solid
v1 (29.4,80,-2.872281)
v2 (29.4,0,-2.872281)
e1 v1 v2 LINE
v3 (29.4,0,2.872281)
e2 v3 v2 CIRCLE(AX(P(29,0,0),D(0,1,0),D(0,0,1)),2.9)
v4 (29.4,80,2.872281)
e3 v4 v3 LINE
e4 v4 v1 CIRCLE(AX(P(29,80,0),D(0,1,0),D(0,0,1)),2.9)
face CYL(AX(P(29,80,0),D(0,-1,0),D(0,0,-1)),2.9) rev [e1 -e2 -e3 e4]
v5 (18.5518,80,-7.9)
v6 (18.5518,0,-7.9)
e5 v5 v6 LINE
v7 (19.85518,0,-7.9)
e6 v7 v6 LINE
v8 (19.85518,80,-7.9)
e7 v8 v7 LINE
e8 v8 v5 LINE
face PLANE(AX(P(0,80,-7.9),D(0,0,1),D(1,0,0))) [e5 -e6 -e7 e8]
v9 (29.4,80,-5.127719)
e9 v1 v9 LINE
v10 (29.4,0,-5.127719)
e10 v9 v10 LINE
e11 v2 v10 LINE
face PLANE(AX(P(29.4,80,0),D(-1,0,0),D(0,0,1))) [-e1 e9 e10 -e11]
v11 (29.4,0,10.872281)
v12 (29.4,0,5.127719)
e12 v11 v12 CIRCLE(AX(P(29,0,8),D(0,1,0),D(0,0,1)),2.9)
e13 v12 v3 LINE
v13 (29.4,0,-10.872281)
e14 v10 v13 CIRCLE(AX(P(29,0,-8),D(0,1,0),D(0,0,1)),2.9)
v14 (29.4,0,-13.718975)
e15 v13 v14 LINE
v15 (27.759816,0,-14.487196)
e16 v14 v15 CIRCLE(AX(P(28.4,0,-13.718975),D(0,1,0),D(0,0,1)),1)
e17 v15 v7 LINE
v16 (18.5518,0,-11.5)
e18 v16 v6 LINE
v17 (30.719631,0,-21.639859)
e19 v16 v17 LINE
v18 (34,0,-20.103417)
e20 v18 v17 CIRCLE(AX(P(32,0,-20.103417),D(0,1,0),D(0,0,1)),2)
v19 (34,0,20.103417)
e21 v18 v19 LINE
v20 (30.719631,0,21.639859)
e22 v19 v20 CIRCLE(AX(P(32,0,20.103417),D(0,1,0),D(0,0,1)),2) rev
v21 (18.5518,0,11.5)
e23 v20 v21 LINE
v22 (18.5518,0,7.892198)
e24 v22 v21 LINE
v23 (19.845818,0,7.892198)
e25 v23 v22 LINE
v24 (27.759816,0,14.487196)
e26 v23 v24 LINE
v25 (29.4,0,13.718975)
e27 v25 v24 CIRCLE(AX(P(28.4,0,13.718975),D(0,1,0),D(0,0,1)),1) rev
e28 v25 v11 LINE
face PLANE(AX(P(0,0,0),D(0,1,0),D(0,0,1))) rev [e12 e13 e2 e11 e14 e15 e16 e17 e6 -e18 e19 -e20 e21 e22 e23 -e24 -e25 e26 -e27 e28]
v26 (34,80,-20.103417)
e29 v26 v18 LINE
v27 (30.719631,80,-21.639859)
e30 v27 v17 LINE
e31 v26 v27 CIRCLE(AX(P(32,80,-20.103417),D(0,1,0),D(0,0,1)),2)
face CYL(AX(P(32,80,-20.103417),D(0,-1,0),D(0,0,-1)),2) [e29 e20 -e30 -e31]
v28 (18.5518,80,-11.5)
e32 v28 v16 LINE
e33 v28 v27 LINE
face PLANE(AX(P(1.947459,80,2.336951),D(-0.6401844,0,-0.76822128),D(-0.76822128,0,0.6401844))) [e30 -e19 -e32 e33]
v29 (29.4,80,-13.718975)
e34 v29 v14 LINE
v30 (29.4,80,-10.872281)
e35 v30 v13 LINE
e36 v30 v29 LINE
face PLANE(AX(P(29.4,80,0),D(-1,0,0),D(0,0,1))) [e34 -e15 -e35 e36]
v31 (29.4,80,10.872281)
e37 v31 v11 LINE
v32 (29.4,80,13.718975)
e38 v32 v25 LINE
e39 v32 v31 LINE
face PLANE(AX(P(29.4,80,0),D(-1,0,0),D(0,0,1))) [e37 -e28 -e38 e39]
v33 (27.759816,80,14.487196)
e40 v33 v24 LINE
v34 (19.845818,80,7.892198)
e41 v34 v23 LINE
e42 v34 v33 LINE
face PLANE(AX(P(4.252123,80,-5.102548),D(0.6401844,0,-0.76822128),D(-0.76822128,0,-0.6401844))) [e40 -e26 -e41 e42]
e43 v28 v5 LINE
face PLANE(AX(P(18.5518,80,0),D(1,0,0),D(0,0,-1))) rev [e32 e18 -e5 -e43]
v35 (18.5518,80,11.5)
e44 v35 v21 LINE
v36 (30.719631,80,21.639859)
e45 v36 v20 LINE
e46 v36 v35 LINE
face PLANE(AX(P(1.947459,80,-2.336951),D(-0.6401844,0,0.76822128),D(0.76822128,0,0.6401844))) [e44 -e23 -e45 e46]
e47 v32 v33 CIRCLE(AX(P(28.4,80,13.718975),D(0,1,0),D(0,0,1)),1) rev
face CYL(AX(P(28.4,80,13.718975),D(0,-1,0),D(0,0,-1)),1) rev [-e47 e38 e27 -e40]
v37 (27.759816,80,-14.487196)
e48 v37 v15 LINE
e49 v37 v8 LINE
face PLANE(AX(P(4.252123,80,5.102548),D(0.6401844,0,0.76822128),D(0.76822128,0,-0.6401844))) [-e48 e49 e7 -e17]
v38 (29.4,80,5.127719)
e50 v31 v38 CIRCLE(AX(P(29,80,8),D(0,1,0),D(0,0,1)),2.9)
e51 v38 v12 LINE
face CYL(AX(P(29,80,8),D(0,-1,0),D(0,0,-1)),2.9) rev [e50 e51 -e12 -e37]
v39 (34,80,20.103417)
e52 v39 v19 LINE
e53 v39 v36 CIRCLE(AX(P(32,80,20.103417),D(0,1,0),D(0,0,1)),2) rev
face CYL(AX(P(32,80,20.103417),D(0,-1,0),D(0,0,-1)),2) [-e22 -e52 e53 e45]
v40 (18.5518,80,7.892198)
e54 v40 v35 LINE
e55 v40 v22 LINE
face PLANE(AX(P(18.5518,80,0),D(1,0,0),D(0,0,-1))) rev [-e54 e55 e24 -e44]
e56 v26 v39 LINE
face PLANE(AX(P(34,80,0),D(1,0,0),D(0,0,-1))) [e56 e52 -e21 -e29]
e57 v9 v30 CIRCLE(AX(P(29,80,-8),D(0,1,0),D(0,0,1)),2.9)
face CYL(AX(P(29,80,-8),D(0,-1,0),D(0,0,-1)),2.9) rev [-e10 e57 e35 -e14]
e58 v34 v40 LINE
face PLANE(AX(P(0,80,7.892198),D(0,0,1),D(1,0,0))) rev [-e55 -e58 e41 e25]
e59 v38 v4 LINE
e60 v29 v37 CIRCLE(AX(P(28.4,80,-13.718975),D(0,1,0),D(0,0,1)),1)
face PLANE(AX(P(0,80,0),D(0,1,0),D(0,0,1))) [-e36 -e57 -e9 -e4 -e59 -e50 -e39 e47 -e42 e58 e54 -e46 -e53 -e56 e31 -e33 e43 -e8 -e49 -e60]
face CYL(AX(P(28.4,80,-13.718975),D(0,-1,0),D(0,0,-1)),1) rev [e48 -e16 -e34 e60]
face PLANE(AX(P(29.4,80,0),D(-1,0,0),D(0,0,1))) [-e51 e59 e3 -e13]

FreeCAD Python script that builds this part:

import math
import FreeCAD as App
import Part
import Sketcher
from FreeCAD import Vector
Q = App.Units.Quantity

doc = App.newDocument("Part")
body = doc.addObject("PartDesign::Body", "Body")

# Sketch on XZ plane
sketch1 = body.newObject("Sketcher::SketchObject", "Sketch")
sketch1.AttachmentSupport = (doc.getObject("XZ_Plane"), [""])
sketch1.MapMode = "FlatFace"
sketch1.addGeometry(Part.LineSegment(Vector(18.6, -11.5, 0), Vector(18.6, -7.9, 0)), False)
sketch1.addGeometry(Part.LineSegment(Vector(18.6, -7.9, 0), Vector(19.9, -7.9, 0)), False)
sketch1.addGeometry(Part.LineSegment(Vector(19.9, -7.9, 0), Vector(27.8, -14.5, 0)), False)
sketch1.addGeometry(Part.ArcOfCircle(Part.Circle(Vector(28.4, -13.7, 0), Vector(0, 0, 1), 1), math.radians(-130), math.radians(0)), False)
sketch1.addGeometry(Part.LineSegment(Vector(29.4, -13.7, 0), Vector(29.4, -10.9, 0)), False)
sketch1.addGeometry(Part.ArcOfCircle(Part.Circle(Vector(29, -8, 0), Vector(0, 0, 1), 2.9), math.radians(-82), math.radians(82)), False)
sketch1.addGeometry(Part.LineSegment(Vector(29.4, -5.1, 0), Vector(29.4, -2.9, 0)), False)
sketch1.addGeometry(Part.ArcOfCircle(Part.Circle(Vector(29, 0, 0), Vector(0, 0, 1), 2.9), math.radians(-82), math.radians(82)), False)
sketch1.addGeometry(Part.LineSegment(Vector(29.4, 2.9, 0), Vector(29.4, 5.1, 0)), False)
sketch1.addGeometry(Part.ArcOfCircle(Part.Circle(Vector(29, 8, 0), Vector(0, 0, 1), 2.9), math.radians(-82), math.radians(82)), False)
sketch1.addGeometry(Part.LineSegment(Vector(29.4, 10.9, 0), Vector(29.4, 13.7, 0)), False)
sketch1.addGeometry(Part.ArcOfCircle(Part.Circle(Vector(28.4, 13.7, 0), Vector(0, 0, 1), 1), math.radians(0), math.radians(130)), False)
sketch1.addGeometry(Part.LineSegment(Vector(27.8, 14.5, 0), Vector(19.8, 7.9, 0)), False)
sketch1.addGeometry(Part.LineSegment(Vector(19.8, 7.9, 0), Vector(18.6, 7.9, 0)), False)
sketch1.addGeometry(Part.LineSegment(Vector(18.6, 7.9, 0), Vector(18.6, 11.5, 0)), False)
sketch1.addGeometry(Part.LineSegment(Vector(18.6, 11.5, 0), Vector(30.7, 21.6, 0)), False)
sketch1.addGeometry(Part.ArcOfCircle(Part.Circle(Vector(32, 20.1, 0), Vector(0, 0, 1), 2), math.radians(0), math.radians(130)), False)
sketch1.addGeometry(Part.LineSegment(Vector(34, 20.1, 0), Vector(34, -20.1, 0)), False)
sketch1.addGeometry(Part.ArcOfCircle(Part.Circle(Vector(32, -20.1, 0), Vector(0, 0, 1), 2), math.radians(-130), math.radians(0)), False)
sketch1.addGeometry(Part.LineSegment(Vector(30.7, -21.6, 0), Vector(18.6, -11.5, 0)), False)
sketch1.addConstraint(Sketcher.Constraint("Coincident", 0, 2, 1, 1))
sketch1.addConstraint(Sketcher.Constraint("Coincident", 1, 2, 2, 1))
sketch1.addConstraint(Sketcher.Constraint("Tangent", 2, 2, 3, 1))
sketch1.addConstraint(Sketcher.Constraint("Tangent", 3, 2, 4, 1))
sketch1.addConstraint(Sketcher.Constraint("Coincident", 4, 2, 5, 1))
sketch1.addConstraint(Sketcher.Constraint("Coincident", 5, 2, 6, 1))
sketch1.addConstraint(Sketcher.Constraint("Coincident", 6, 2, 7, 1))
sketch1.addConstraint(Sketcher.Constraint("Coincident", 7, 2, 8, 1))
sketch1.addConstraint(Sketcher.Constraint("Coincident", 8, 2, 9, 1))
sketch1.addConstraint(Sketcher.Constraint("Coincident", 9, 2, 10, 1))
sketch1.addConstraint(Sketcher.Constraint("Tangent", 10, 2, 11, 1))
sketch1.addConstraint(Sketcher.Constraint("Tangent", 11, 2, 12, 1))
sketch1.addConstraint(Sketcher.Constraint("Coincident", 12, 2, 13, 1))
sketch1.addConstraint(Sketcher.Constraint("Coincident", 13, 2, 14, 1))
sketch1.addConstraint(Sketcher.Constraint("Coincident", 14, 2, 15, 1))
sketch1.addConstraint(Sketcher.Constraint("Tangent", 15, 2, 16, 2))
sketch1.addConstraint(Sketcher.Constraint("Tangent", 16, 1, 17, 1))
sketch1.addConstraint(Sketcher.Constraint("Tangent", 17, 2, 18, 2))
sketch1.addConstraint(Sketcher.Constraint("Tangent", 18, 1, 19, 1))
sketch1.addConstraint(Sketcher.Constraint("Coincident", 19, 2, 0, 1))
sketch1.addConstraint(Sketcher.Constraint("Vertical", 0))
sketch1.addConstraint(Sketcher.Constraint("Horizontal", 1))
sketch1.addConstraint(Sketcher.Constraint("Vertical", 4))
sketch1.addConstraint(Sketcher.Constraint("Vertical", 6))
sketch1.addConstraint(Sketcher.Constraint("Vertical", 8))
sketch1.addConstraint(Sketcher.Constraint("Vertical", 10))
sketch1.addConstraint(Sketcher.Constraint("Horizontal", 13))
sketch1.addConstraint(Sketcher.Constraint("Vertical", 14))
sketch1.addConstraint(Sketcher.Constraint("Vertical", 17))
sketch1.addConstraint(Sketcher.Constraint("Equal", 5, 7))
sketch1.addConstraint(Sketcher.Constraint("Equal", 7, 9))
sketch1.addConstraint(Sketcher.Constraint("Equal", 3, 11))
sketch1.addConstraint(Sketcher.Constraint("Equal", 16, 18))
sketch1.addConstraint(Sketcher.Constraint("Symmetric", 5, 3, 9, 3, -1))
sketch1.addConstraint(Sketcher.Constraint("Symmetric", 3, 3, 11, 3, -1))
sketch1.addConstraint(Sketcher.Constraint("Symmetric", 6, 2, 7, 2, -1))
sketch1.addConstraint(Sketcher.Constraint("Symmetric", 15, 2, 18, 1, -1))
sketch1.addConstraint(Sketcher.Constraint("Parallel", 12, 15))
sketch1.addConstraint(Sketcher.Constraint("Parallel", 2, 19))
sketch1.addConstraint(Sketcher.Constraint("Vertical", 5, 3, 7, 3))
sketch1.addConstraint(Sketcher.Constraint("Vertical", 4, 2, 5, 2))
sketch1.addConstraint(Sketcher.Constraint("Vertical", 0, 2, 13, 2))
sketch1.addConstraint(Sketcher.Constraint("Radius", 3, Q("1 mm")))
sketch1.addConstraint(Sketcher.Constraint("Radius", 16, Q("2 mm")))
sketch1.addConstraint(Sketcher.Constraint("Radius", 5, Q("2.9 mm")))
sketch1.addConstraint(Sketcher.Constraint("DistanceY", 0, 1, 0, 2, Q("3.6 mm")))
sketch1.addConstraint(Sketcher.Constraint("DistanceX", -1, 1, 5, 3, Q("29 mm")))
sketch1.addConstraint(Sketcher.Constraint("DistanceY", 5, 3, -1, 1, Q("8 mm")))
sketch1.addConstraint(Sketcher.Constraint("DistanceX", -1, 1, 16, 3, Q("32 mm")))
sketch1.addConstraint(Sketcher.Constraint("DistanceX", -1, 1, 3, 3, Q("28.4 mm")))
sketch1.addConstraint(Sketcher.Constraint("DistanceY", 0, 2, -1, 1, Q("7.9 mm")))
sketch1.addConstraint(Sketcher.Constraint("DistanceY", 14, 1, 14, 2, Q("3.607802 mm")))
sketch1.addConstraint(Sketcher.Constraint("DistanceX", 1, 1, 1, 2, Q("1.30338 mm")))
sketch1.addConstraint(Sketcher.Constraint("DistanceX", -1, 1, 0, 2, Q("18.5518 mm")))
sketch1.addConstraint(Sketcher.Constraint("Distance", 2, Q("10.28953 mm")))
pad1 = body.newObject("PartDesign::Pad", "Pad")
pad1.Profile = sketch1
pad1.Length = 80
pad1.Reversed = True

doc.recompute()
